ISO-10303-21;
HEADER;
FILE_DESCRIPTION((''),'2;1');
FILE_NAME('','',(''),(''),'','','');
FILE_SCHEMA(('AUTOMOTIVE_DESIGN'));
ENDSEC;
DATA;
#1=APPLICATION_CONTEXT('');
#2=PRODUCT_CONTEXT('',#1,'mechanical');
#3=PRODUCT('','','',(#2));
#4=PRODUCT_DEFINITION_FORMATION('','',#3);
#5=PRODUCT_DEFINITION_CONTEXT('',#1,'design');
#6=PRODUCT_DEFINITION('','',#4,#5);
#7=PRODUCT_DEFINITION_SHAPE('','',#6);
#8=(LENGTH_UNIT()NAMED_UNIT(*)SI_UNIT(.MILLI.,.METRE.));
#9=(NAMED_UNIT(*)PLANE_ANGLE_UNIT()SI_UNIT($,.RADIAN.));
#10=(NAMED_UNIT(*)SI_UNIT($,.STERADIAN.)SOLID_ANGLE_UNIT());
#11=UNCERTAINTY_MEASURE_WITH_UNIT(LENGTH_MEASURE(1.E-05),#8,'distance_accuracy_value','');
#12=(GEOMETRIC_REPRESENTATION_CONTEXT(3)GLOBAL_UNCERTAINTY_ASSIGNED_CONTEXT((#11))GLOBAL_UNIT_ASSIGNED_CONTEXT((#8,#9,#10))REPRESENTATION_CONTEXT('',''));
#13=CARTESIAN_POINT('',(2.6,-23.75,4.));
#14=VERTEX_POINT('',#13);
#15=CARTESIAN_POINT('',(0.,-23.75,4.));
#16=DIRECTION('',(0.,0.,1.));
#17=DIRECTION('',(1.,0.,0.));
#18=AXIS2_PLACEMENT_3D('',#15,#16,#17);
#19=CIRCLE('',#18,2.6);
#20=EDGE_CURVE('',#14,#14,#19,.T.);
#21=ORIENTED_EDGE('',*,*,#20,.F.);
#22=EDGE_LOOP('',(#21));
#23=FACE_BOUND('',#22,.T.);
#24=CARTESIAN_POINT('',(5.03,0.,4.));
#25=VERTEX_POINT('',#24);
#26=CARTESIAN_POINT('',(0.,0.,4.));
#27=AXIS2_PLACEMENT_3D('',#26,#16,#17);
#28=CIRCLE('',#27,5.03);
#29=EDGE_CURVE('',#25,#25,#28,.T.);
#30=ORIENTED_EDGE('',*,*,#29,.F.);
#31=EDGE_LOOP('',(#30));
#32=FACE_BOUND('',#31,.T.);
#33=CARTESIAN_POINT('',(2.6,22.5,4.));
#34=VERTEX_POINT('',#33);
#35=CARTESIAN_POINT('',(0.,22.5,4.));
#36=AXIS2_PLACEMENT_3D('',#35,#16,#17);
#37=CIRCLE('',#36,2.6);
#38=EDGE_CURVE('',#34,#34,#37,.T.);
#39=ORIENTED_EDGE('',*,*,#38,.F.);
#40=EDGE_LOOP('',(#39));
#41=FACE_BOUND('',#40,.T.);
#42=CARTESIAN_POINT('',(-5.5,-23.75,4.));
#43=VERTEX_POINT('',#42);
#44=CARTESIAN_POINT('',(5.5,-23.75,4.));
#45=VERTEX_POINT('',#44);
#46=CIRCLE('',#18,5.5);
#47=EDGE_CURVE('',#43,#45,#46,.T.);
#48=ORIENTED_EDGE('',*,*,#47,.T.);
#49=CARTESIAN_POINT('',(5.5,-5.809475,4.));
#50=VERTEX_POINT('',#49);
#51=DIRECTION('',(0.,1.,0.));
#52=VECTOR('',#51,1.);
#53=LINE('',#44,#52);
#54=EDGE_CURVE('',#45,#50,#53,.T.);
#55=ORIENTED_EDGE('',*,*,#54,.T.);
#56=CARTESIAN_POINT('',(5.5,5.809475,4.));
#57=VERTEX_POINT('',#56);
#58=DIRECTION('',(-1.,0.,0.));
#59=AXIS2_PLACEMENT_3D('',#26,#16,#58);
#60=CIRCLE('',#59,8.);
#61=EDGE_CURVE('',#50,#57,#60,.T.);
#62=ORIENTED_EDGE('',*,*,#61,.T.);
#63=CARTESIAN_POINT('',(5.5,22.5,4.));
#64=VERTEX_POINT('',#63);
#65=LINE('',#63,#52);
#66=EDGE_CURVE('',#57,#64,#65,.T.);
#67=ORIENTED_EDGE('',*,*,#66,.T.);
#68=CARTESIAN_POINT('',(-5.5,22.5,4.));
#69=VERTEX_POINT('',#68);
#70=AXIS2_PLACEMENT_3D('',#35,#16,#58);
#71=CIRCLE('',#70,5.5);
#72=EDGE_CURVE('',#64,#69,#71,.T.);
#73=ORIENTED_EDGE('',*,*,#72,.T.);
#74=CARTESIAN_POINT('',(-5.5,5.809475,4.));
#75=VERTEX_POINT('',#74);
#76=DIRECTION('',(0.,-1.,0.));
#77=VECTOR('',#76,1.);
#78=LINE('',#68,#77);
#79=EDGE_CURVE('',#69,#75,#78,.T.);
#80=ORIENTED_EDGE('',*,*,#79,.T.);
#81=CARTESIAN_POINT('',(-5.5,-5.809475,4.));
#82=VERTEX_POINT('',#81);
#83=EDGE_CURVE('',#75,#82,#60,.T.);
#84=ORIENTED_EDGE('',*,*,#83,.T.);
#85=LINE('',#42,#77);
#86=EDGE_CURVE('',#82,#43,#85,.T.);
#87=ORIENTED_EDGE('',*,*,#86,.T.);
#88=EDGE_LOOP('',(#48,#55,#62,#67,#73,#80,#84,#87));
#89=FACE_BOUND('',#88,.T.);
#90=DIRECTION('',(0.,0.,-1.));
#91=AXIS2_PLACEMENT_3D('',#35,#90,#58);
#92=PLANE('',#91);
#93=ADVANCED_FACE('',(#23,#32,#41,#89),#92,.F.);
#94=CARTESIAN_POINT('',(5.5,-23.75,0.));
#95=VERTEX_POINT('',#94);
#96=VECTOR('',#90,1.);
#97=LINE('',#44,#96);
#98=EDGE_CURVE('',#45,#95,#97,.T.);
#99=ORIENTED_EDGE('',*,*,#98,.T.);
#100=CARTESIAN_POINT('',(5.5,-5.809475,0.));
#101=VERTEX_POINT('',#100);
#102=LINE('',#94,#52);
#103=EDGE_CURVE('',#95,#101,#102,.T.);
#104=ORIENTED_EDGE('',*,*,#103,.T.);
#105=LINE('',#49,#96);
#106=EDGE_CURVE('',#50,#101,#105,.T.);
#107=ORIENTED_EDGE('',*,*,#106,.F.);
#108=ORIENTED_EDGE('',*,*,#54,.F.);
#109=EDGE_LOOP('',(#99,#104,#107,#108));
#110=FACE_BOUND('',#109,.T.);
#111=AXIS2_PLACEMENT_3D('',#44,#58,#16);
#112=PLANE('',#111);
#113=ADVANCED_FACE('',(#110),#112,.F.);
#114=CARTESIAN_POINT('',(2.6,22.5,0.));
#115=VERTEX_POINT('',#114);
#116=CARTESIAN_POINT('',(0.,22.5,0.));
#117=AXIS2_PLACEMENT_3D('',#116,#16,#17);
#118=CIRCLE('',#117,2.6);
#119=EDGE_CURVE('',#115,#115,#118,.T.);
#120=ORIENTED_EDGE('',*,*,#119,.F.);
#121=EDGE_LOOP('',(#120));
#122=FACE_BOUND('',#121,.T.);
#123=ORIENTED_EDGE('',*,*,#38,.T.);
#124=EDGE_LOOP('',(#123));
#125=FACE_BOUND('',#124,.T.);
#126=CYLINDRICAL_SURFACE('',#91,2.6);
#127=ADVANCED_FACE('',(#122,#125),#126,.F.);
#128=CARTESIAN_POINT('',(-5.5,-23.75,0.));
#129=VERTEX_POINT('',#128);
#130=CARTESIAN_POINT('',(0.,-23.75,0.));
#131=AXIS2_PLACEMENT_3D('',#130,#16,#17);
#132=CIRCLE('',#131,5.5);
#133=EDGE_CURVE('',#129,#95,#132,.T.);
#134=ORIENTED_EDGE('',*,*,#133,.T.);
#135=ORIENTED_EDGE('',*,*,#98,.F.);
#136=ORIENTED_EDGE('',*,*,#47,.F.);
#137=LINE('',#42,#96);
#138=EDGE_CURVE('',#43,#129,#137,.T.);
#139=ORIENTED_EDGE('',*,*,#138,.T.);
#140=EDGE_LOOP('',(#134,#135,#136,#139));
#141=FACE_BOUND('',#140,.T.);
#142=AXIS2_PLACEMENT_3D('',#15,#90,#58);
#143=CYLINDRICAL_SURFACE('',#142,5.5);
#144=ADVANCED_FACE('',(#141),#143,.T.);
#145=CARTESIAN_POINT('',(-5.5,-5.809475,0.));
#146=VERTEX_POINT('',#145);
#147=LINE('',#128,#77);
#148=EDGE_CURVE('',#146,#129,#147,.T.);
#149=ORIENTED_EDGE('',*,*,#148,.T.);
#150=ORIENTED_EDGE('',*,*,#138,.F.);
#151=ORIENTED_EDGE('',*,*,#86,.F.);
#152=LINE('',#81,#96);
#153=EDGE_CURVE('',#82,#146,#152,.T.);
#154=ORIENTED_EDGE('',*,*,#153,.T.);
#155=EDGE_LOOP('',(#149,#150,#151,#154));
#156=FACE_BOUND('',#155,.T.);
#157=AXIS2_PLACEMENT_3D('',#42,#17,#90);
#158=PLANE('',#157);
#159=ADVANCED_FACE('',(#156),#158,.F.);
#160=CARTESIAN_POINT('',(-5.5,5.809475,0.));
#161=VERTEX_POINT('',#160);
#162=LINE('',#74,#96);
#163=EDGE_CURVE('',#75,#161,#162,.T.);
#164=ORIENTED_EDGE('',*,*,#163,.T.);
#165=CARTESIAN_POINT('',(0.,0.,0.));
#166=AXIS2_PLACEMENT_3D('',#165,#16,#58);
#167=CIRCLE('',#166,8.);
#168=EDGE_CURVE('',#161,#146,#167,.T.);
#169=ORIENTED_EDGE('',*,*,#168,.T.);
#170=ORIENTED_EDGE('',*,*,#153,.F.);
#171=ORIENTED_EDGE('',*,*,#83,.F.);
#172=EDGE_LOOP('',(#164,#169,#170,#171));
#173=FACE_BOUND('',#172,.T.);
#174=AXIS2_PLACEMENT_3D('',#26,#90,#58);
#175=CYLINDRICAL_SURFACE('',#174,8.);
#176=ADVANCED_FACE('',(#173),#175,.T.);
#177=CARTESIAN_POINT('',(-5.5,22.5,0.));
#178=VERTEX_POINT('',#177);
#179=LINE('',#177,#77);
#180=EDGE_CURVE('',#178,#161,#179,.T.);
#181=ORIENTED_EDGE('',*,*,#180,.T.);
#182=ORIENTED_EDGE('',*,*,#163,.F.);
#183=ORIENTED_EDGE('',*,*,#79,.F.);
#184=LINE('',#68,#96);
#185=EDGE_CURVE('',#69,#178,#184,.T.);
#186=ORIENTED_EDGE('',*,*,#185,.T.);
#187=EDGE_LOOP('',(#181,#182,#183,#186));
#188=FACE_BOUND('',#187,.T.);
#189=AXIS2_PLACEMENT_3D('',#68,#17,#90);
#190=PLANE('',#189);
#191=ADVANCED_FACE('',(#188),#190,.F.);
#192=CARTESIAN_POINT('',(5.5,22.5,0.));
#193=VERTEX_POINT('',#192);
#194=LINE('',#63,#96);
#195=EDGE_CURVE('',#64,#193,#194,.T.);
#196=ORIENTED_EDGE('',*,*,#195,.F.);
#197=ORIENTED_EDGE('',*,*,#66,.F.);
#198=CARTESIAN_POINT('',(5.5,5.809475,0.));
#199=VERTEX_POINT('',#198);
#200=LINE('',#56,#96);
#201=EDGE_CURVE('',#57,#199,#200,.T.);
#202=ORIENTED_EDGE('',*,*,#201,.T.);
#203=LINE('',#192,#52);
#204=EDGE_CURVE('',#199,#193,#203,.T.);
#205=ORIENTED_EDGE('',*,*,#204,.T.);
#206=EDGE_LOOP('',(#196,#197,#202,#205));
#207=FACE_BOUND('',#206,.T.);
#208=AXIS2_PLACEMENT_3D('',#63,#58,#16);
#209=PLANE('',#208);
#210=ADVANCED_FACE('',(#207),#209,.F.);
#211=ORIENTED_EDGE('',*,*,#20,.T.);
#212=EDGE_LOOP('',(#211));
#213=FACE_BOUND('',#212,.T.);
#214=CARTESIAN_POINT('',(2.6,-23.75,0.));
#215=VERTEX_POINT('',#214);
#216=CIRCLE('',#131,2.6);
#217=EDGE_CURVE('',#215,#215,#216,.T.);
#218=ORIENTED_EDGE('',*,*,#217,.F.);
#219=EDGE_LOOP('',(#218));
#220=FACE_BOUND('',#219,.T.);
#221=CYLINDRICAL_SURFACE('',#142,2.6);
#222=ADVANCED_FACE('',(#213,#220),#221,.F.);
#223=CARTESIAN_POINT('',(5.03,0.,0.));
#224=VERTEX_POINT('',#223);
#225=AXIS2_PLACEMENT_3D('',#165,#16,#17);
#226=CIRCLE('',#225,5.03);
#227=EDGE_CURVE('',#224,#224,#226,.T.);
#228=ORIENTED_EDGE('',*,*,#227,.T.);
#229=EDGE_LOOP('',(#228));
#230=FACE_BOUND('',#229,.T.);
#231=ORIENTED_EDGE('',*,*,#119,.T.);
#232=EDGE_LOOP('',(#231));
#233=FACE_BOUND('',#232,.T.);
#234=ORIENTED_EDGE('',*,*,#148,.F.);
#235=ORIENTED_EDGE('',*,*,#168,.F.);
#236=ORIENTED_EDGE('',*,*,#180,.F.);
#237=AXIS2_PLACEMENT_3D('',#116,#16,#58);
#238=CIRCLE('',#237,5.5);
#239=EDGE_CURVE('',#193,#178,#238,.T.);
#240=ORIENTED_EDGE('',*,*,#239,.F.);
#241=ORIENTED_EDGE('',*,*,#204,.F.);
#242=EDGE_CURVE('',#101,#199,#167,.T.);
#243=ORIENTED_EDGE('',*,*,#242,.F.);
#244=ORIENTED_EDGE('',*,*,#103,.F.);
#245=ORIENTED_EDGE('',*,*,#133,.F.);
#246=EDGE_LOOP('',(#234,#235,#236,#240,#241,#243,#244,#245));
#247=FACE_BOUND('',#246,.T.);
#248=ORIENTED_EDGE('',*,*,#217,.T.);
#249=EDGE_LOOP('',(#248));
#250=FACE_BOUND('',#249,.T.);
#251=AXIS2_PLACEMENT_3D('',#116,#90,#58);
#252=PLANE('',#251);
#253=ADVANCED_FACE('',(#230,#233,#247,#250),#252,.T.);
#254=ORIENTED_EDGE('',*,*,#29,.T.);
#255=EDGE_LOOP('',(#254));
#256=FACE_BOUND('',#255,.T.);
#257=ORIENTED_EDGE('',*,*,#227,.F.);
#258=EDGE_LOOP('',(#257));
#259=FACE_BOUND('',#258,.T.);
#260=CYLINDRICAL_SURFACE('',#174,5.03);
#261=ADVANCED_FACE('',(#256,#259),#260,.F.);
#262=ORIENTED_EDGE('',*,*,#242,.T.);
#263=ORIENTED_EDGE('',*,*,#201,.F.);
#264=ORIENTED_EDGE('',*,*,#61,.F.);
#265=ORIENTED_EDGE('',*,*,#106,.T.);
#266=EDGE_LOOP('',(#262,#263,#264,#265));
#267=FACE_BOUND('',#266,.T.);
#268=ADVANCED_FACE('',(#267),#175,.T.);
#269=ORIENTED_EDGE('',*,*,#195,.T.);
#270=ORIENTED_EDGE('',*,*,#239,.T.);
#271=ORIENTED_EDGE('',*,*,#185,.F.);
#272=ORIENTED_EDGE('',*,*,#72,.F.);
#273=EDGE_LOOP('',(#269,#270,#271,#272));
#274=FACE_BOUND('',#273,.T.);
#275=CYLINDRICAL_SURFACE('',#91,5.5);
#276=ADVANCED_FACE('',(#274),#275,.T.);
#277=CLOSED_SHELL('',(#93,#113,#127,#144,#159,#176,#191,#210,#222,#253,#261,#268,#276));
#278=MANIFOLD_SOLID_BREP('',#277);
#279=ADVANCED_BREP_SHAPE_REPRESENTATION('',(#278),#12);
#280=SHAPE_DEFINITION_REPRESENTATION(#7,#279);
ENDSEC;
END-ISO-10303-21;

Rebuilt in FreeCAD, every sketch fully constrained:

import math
import FreeCAD as App
import Part
import Sketcher
from FreeCAD import Vector
Q = App.Units.Quantity

doc = App.newDocument("Part")
body = doc.addObject("PartDesign::Body", "Body")

# Sketch on XY plane
sketch1 = body.newObject("Sketcher::SketchObject", "Sketch")
sketch1.AttachmentSupport = (doc.getObject("XY_Plane"), [""])
sketch1.MapMode = "FlatFace"
sketch1.addGeometry([
    Part.LineSegment(Vector(5.5, 5.8, 0), Vector(5.5, 22.5, 0)),  # 0
    Part.ArcOfCircle(Part.Circle(Vector(0, 22.5, 0), Vector(0, 0, 1), 5.5), math.radians(0), math.radians(180)),  # 1
    Part.LineSegment(Vector(-5.5, 22.5, 0), Vector(-5.5, 5.8, 0)),  # 2
    Part.ArcOfCircle(Part.Circle(Vector(0, 0, 0), Vector(0, 0, 1), 8), math.radians(133), math.radians(227)),  # 3
    Part.LineSegment(Vector(-5.5, -5.8, 0), Vector(-5.5, -23.8, 0)),  # 4
    Part.ArcOfCircle(Part.Circle(Vector(0, -23.8, 0), Vector(0, 0, 1), 5.5), math.radians(180), math.radians(360)),  # 5
    Part.LineSegment(Vector(5.5, -23.8, 0), Vector(5.5, -5.8, 0)),  # 6
    Part.ArcOfCircle(Part.Circle(Vector(0, 0, 0), Vector(0, 0, 1), 8), math.radians(-47), math.radians(47)),  # 7
    Part.Circle(Vector(0, -23.8, 0), Vector(0, 0, 1), 2.6),  # 8
    Part.Circle(Vector(0, 0, 0), Vector(0, 0, 1), 5),  # 9
    Part.Circle(Vector(0, 22.5, 0), Vector(0, 0, 1), 2.6),  # 10
], False)
sketch1.addConstraint([
    Sketcher.Constraint("Tangent", 0, 2, 1, 1),
    Sketcher.Constraint("Tangent", 1, 2, 2, 1),
    Sketcher.Constraint("Coincident", 2, 2, 3, 1),
    Sketcher.Constraint("Coincident", 3, 2, 4, 1),
    Sketcher.Constraint("Tangent", 4, 2, 5, 1),
    Sketcher.Constraint("Tangent", 5, 2, 6, 1),
    Sketcher.Constraint("Coincident", 6, 2, 7, 1),
    Sketcher.Constraint("Coincident", 7, 2, 0, 1),
    Sketcher.Constraint("Vertical", 0),
    Sketcher.Constraint("Vertical", 2),
    Sketcher.Constraint("Vertical", 4),
    Sketcher.Constraint("Vertical", 6),
    Sketcher.Constraint("Coincident", 3, 3, -1, 1),
    Sketcher.Constraint("Coincident", 7, 3, -1, 1),
    Sketcher.Constraint("Coincident", 9, 3, -1, 1),
    Sketcher.Constraint("Coincident", 8, 3, 5, 3),
    Sketcher.Constraint("Coincident", 10, 3, 1, 3),
    Sketcher.Constraint("Equal", 1, 5),
    Sketcher.Constraint("Equal", 3, 7),
    Sketcher.Constraint("Equal", 8, 10),
    Sketcher.Constraint("PointOnObject", 1, 3, -2),
    Sketcher.Constraint("PointOnObject", 5, 3, -2),
    Sketcher.Constraint("Radius", 3, Q("8 mm")),
    Sketcher.Constraint("Diameter", 8, Q("5.2 mm")),
    Sketcher.Constraint("Radius", 1, Q("5.5 mm")),
    Sketcher.Constraint("Diameter", 9, Q("10.06 mm")),
    Sketcher.Constraint("DistanceY", -1, 1, 1, 3, Q("22.5 mm")),
    Sketcher.Constraint("DistanceY", 5, 3, -1, 1, Q("23.75 mm")),
])
pad1 = body.newObject("PartDesign::Pad", "Pad")
pad1.Profile = sketch1
pad1.Length = 4

doc.recompute()
